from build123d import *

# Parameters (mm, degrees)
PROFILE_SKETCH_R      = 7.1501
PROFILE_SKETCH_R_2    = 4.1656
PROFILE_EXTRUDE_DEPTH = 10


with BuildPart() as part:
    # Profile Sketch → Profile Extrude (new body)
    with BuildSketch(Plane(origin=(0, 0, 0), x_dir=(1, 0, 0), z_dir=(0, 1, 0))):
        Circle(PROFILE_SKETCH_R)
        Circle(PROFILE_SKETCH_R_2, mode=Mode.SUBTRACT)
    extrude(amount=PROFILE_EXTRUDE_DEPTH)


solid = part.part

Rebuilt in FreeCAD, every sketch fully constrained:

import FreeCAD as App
import Part
import Sketcher
from FreeCAD import Vector
Q = App.Units.Quantity

doc = App.newDocument("Part")
params = doc.addObject("Spreadsheet::Sheet", "Params")
for row, (alias, value) in enumerate([
    ("sketch1_diameter", "0.563 in"),
    ("sketch1_diameter2", "0.328 in"),
    ("pad1_length", "10 mm"),
], start=1):
    params.set(f"A{row}", alias)
    params.set(f"B{row}", "=" + value)
    params.setAlias(f"B{row}", alias)

body = doc.addObject("PartDesign::Body", "Body")

# Sketch on XZ plane
sketch1 = doc.addObject("Sketcher::SketchObject", "Sketch")
body.addObject(sketch1)
sketch1.AttachmentSupport = (doc.XZ_Plane, [""])
sketch1.MapMode = "FlatFace"
sketch1.addGeometry(Part.Circle(Vector(0, 0, 0), Vector(0, 0, 1), 7.2), False)
sketch1.addGeometry(Part.Circle(Vector(0, 0, 0), Vector(0, 0, 1), 4.2), False)
sketch1.addConstraint(Sketcher.Constraint("Coincident", 0, 3, -1, 1))
sketch1.addConstraint(Sketcher.Constraint("Coincident", 1, 3, -1, 1))
sketch1.addConstraint(Sketcher.Constraint("Diameter", 0, Q("0.563 in")))
sketch1.addConstraint(Sketcher.Constraint("Diameter", 1, Q("0.328 in")))
sketch1.setExpression("Constraints[2]", "Params.sketch1_diameter")
sketch1.setExpression("Constraints[3]", "Params.sketch1_diameter2")
pad1 = doc.addObject("PartDesign::Pad", "Pad")
body.addObject(pad1)
pad1.Profile = sketch1
pad1.setExpression("Length", "Params.pad1_length")
pad1.Reversed = True

doc.recompute()
